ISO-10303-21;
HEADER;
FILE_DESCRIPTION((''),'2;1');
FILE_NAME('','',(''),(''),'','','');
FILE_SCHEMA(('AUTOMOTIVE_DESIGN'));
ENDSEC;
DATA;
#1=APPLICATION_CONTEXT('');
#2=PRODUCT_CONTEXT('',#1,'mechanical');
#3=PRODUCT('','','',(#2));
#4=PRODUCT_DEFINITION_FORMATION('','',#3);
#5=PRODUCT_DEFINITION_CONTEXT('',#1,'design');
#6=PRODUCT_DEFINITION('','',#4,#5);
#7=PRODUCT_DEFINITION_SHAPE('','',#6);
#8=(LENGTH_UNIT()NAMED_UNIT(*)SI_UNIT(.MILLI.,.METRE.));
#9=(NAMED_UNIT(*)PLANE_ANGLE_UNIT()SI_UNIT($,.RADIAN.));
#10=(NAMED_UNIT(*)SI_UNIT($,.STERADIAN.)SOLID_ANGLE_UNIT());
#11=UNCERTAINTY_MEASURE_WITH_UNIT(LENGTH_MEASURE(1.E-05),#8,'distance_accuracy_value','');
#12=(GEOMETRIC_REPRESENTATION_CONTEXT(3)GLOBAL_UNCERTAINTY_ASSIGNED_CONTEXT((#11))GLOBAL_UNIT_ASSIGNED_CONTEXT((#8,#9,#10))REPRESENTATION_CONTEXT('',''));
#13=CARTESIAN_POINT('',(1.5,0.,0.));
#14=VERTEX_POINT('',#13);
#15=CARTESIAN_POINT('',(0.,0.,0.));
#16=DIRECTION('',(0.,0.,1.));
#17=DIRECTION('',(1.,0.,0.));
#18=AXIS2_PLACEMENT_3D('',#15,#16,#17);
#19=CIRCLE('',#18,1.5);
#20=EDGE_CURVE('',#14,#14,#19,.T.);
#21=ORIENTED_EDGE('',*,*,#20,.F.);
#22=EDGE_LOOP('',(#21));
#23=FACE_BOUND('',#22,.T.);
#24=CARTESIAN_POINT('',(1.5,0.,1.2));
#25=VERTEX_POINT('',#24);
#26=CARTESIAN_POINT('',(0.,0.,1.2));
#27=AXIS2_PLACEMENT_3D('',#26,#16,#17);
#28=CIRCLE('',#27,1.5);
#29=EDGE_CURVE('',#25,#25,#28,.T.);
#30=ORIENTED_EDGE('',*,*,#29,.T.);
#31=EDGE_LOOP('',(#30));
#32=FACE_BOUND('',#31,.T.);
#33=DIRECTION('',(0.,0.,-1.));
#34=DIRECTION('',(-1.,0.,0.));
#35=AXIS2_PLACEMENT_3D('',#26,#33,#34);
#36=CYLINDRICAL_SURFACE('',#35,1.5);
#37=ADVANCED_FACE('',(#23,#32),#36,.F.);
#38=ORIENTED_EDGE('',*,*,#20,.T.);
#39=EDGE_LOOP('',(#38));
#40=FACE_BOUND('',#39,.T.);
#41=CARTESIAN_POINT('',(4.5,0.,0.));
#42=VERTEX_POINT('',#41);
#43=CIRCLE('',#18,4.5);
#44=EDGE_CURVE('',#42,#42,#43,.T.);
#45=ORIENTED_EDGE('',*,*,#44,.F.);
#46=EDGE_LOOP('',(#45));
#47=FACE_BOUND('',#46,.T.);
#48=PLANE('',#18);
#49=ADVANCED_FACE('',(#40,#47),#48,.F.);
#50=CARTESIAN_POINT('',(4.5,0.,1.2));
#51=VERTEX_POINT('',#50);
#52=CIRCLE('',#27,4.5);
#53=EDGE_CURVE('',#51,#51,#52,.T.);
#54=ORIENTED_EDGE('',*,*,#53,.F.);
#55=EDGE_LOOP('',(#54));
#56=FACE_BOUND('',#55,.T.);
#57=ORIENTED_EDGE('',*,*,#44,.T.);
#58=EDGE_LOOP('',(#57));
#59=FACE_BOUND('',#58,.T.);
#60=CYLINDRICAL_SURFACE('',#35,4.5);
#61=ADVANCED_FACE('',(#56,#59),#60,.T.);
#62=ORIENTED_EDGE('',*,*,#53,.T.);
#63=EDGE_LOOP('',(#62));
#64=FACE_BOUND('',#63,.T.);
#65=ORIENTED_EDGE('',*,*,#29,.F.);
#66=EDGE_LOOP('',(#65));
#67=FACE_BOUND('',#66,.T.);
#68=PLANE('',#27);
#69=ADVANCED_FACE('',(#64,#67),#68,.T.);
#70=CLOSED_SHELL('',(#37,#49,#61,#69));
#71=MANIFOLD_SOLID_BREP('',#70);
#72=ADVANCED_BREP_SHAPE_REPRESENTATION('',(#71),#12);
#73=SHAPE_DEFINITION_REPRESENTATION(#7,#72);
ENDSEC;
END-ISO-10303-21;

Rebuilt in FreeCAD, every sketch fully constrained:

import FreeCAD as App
import Part
import Sketcher
Q = App.Units.Quantity

doc = App.newDocument("Part")
params = doc.addObject("Spreadsheet::Sheet", "Params")
for row, (alias, value) in enumerate([
    ("sketch1_diameter", "9 mm"),
    ("sketch1_diameter2", "3 mm"),
    ("pad1_length", "1.2 mm"),
], start=1):
    params.set(f"A{row}", alias)
    params.set(f"B{row}", "=" + value)
    params.setAlias(f"B{row}", alias)

body = doc.addObject("PartDesign::Body", "Body")

# Sketch on XY plane
sketch1 = doc.addObject("Sketcher::SketchObject", "Sketch")
body.addObject(sketch1)
sketch1.AttachmentSupport = (doc.XY_Plane, [""])
sketch1.MapMode = "FlatFace"
sketch1.addGeometry([
    Part.Circle(App.Vector(0, 0, 0), App.Vector(0, 0, 1), 4.5),
    Part.Circle(App.Vector(0, 0, 0), App.Vector(0, 0, 1), 1.5),
], False)
sketch1.addConstraint([
    Sketcher.Constraint("Coincident", 0, 3, -1, 1),
    Sketcher.Constraint("Coincident", 1, 3, -1, 1),
    Sketcher.Constraint("Diameter", 0, Q("9 mm")),
    Sketcher.Constraint("Diameter", 1, Q("3 mm")),
])
sketch1.setExpression("Constraints[2]", "Params.sketch1_diameter")
sketch1.setExpression("Constraints[3]", "Params.sketch1_diameter2")
pad1 = doc.addObject("PartDesign::Pad", "Pad")
body.addObject(pad1)
pad1.Profile = sketch1
pad1.setExpression("Length", "Params.pad1_length")

doc.recompute()
